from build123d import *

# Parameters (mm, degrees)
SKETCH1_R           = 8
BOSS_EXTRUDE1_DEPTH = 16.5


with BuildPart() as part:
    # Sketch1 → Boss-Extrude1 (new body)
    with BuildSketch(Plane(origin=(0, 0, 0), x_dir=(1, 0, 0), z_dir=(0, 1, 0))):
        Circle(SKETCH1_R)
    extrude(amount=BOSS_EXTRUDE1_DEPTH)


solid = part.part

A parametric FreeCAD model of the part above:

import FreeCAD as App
import Part
import Sketcher

doc = App.newDocument("Part")
body = doc.addObject("PartDesign::Body", "Body")

sketch1 = doc.addObject("Sketcher::SketchObject", "Sketch")
body.addObject(sketch1)
sketch1.AttachmentSupport = (doc.XZ_Plane, [""])
sketch1.MapMode = "FlatFace"
sketch1.addGeometry(Part.Circle(App.Vector(0, 0, 0), App.Vector(0, 0, 1), 8), False)
sketch1.addConstraint([
    Sketcher.Constraint("Coincident", 0, 3, -1, 1),
    Sketcher.Constraint("Diameter", 0, 16.0),
])
pad1 = doc.addObject("PartDesign::Pad", "Pad")
body.addObject(pad1)
pad1.Profile = sketch1
pad1.Length = 16.5
pad1.Reversed = True

doc.recompute()
